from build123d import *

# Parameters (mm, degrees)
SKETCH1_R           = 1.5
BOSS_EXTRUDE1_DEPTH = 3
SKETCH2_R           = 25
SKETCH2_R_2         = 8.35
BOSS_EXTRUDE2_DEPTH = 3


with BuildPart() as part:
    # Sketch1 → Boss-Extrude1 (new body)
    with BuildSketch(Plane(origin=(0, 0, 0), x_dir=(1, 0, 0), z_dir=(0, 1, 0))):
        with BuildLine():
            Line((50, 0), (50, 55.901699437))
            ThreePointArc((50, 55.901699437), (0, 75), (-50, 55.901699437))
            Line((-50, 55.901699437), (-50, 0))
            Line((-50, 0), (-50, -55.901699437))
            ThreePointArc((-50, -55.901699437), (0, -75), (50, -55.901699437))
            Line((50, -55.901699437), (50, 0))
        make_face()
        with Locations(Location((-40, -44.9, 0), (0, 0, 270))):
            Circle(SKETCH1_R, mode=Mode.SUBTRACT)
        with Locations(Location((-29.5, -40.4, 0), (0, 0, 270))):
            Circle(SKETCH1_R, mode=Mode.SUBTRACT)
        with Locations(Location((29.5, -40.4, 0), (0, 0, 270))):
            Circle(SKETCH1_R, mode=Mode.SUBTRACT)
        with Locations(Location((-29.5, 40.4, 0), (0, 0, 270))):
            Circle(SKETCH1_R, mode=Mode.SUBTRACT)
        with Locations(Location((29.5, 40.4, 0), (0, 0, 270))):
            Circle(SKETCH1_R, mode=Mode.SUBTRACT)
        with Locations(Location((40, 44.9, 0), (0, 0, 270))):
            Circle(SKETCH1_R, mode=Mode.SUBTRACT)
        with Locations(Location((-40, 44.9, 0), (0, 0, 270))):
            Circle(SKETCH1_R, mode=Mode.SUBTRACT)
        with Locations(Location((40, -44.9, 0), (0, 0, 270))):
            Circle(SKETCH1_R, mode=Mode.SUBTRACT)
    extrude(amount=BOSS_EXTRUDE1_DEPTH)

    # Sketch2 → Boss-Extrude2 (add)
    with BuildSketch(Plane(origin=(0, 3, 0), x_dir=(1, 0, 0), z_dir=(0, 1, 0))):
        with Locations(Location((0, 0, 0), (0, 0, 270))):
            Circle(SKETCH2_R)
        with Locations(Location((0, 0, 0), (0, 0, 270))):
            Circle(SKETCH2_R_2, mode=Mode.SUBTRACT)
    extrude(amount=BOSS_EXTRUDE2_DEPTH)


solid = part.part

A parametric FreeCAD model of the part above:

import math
import FreeCAD as App
import Part
import Sketcher

V = App.Vector

doc = App.newDocument("Part")
params = doc.addObject("Spreadsheet::Sheet", "Params")
for row, (alias, value) in enumerate([
    ("sketch1_diameter", "3 mm"),
    ("sketch1_radius", "75 mm"),
    ("pad1_length", "3 mm"),
    ("sketch2_diameter", "50 mm"),
    ("sketch2_diameter2", "16.7 mm"),
    ("pad2_length", "3 mm"),
], start=1):
    params.set(f"A{row}", alias)
    params.set(f"B{row}", "=" + value)
    params.setAlias(f"B{row}", alias)

body = doc.addObject("PartDesign::Body", "Body")

# Sketch on XZ plane
sketch1 = doc.addObject("Sketcher::SketchObject", "Sketch")
body.addObject(sketch1)
sketch1.AttachmentSupport = (doc.XZ_Plane, [""])
sketch1.MapMode = "FlatFace"
sketch1.addGeometry(Part.ArcOfCircle(Part.Circle(V(0, 0, 0), V(0, 0, 1), 75), math.radians(-132), math.radians(-48)), False)
sketch1.addGeometry(Part.LineSegment(V(-50, -55.9, 0), V(-50, 55.9, 0)), False)
sketch1.addGeometry(Part.ArcOfCircle(Part.Circle(V(0, 0, 0), V(0, 0, 1), 75), math.radians(48), math.radians(132)), False)
sketch1.addGeometry(Part.LineSegment(V(50, 55.9, 0), V(50, -55.9, 0)), False)
sketch1.addGeometry(Part.Circle(V(-40, 44.9, 0), V(0, 0, 1), 1.5), False)
sketch1.addGeometry(Part.Circle(V(-29.5, 40.4, 0), V(0, 0, 1), 1.5), False)
sketch1.addGeometry(Part.Circle(V(29.5, 40.4, 0), V(0, 0, 1), 1.5), False)
sketch1.addGeometry(Part.Circle(V(40, 44.9, 0), V(0, 0, 1), 1.5), False)
sketch1.addGeometry(Part.Circle(V(-40, -44.9, 0), V(0, 0, 1), 1.5), False)
sketch1.addGeometry(Part.Circle(V(-29.5, -40.4, 0), V(0, 0, 1), 1.5), False)
sketch1.addGeometry(Part.Circle(V(29.5, -40.4, 0), V(0, 0, 1), 1.5), False)
sketch1.addGeometry(Part.Circle(V(40, -44.9, 0), V(0, 0, 1), 1.5), False)
sketch1.addConstraint(Sketcher.Constraint("Coincident", 0, 1, 1, 1))
sketch1.addConstraint(Sketcher.Constraint("Coincident", 1, 2, 2, 2))
sketch1.addConstraint(Sketcher.Constraint("Coincident", 2, 1, 3, 1))
sketch1.addConstraint(Sketcher.Constraint("Coincident", 3, 2, 0, 2))
sketch1.addConstraint(Sketcher.Constraint("Vertical", 1))
sketch1.addConstraint(Sketcher.Constraint("Vertical", 3))
sketch1.addConstraint(Sketcher.Constraint("Coincident", 0, 3, -1, 1))
sketch1.addConstraint(Sketcher.Constraint("Coincident", 2, 3, -1, 1))
sketch1.addConstraint(Sketcher.Constraint("Equal", 0, 2))
sketch1.addConstraint(Sketcher.Constraint("Equal", 4, 5))
sketch1.addConstraint(Sketcher.Constraint("Equal", 5, 6))
sketch1.addConstraint(Sketcher.Constraint("Equal", 6, 7))
sketch1.addConstraint(Sketcher.Constraint("Equal", 7, 8))
sketch1.addConstraint(Sketcher.Constraint("Equal", 8, 9))
sketch1.addConstraint(Sketcher.Constraint("Equal", 9, 10))
sketch1.addConstraint(Sketcher.Constraint("Equal", 10, 11))
sketch1.addConstraint(Sketcher.Constraint("Symmetric", 7, 3, 8, 3, -1, 1))
sketch1.addConstraint(Sketcher.Constraint("Symmetric", 6, 3, 9, 3, -1, 1))
sketch1.addConstraint(Sketcher.Constraint("Symmetric", 5, 3, 10, 3, -1, 1))
sketch1.addConstraint(Sketcher.Constraint("Symmetric", 4, 3, 11, 3, -1, 1))
sketch1.addConstraint(Sketcher.Constraint("Symmetric", 5, 3, 6, 3, -2))
sketch1.addConstraint(Sketcher.Constraint("Symmetric", 4, 3, 7, 3, -2))
sketch1.addConstraint(Sketcher.Constraint("Horizontal", 1, 2, 2, 1))
sketch1.addConstraint(Sketcher.Constraint("Diameter", 4, 3.0))
sketch1.addConstraint(Sketcher.Constraint("Radius", 0, 75.0))
sketch1.addConstraint(Sketcher.Constraint("DistanceX", 4, 3, -1, 1, 40.0))
sketch1.addConstraint(Sketcher.Constraint("DistanceX", 0, 1, -1, 1, 50.0))
sketch1.addConstraint(Sketcher.Constraint("DistanceX", 5, 3, 6, 3, 59.0))
sketch1.addConstraint(Sketcher.Constraint("DistanceY", -1, 1, 4, 3, 44.9))
sketch1.addConstraint(Sketcher.Constraint("DistanceY", -1, 1, 5, 3, 40.4))
sketch1.setExpression("Constraints[23]", "Params.sketch1_diameter")
sketch1.setExpression("Constraints[24]", "Params.sketch1_radius")
pad1 = doc.addObject("PartDesign::Pad", "Pad")
body.addObject(pad1)
pad1.Profile = sketch1
pad1.setExpression("Length", "Params.pad1_length")
pad1.Reversed = True

# Sketch on XZ plane
sketch2 = doc.addObject("Sketcher::SketchObject", "Sketch001")
body.addObject(sketch2)
sketch2.AttachmentSupport = (doc.XZ_Plane, [""])
sketch2.MapMode = "FlatFace"
sketch2.AttachmentOffset = App.Placement(V(0, 0, -3), App.Rotation())
sketch2.addGeometry(Part.Circle(V(0, 0, 0), V(0, 0, 1), 25), False)
sketch2.addGeometry(Part.Circle(V(0, 0, 0), V(0, 0, 1), 8), False)
sketch2.addConstraint(Sketcher.Constraint("Coincident", 0, 3, -1, 1))
sketch2.addConstraint(Sketcher.Constraint("Coincident", 1, 3, -1, 1))
sketch2.addConstraint(Sketcher.Constraint("Diameter", 0, 50.0))
sketch2.addConstraint(Sketcher.Constraint("Diameter", 1, 16.7))
sketch2.setExpression("Constraints[2]", "Params.sketch2_diameter")
sketch2.setExpression("Constraints[3]", "Params.sketch2_diameter2")
pad2 = doc.addObject("PartDesign::Pad", "Pad001")
body.addObject(pad2)
pad2.Profile = sketch2
pad2.setExpression("Length", "Params.pad2_length")
pad2.Reversed = True

doc.recompute()
